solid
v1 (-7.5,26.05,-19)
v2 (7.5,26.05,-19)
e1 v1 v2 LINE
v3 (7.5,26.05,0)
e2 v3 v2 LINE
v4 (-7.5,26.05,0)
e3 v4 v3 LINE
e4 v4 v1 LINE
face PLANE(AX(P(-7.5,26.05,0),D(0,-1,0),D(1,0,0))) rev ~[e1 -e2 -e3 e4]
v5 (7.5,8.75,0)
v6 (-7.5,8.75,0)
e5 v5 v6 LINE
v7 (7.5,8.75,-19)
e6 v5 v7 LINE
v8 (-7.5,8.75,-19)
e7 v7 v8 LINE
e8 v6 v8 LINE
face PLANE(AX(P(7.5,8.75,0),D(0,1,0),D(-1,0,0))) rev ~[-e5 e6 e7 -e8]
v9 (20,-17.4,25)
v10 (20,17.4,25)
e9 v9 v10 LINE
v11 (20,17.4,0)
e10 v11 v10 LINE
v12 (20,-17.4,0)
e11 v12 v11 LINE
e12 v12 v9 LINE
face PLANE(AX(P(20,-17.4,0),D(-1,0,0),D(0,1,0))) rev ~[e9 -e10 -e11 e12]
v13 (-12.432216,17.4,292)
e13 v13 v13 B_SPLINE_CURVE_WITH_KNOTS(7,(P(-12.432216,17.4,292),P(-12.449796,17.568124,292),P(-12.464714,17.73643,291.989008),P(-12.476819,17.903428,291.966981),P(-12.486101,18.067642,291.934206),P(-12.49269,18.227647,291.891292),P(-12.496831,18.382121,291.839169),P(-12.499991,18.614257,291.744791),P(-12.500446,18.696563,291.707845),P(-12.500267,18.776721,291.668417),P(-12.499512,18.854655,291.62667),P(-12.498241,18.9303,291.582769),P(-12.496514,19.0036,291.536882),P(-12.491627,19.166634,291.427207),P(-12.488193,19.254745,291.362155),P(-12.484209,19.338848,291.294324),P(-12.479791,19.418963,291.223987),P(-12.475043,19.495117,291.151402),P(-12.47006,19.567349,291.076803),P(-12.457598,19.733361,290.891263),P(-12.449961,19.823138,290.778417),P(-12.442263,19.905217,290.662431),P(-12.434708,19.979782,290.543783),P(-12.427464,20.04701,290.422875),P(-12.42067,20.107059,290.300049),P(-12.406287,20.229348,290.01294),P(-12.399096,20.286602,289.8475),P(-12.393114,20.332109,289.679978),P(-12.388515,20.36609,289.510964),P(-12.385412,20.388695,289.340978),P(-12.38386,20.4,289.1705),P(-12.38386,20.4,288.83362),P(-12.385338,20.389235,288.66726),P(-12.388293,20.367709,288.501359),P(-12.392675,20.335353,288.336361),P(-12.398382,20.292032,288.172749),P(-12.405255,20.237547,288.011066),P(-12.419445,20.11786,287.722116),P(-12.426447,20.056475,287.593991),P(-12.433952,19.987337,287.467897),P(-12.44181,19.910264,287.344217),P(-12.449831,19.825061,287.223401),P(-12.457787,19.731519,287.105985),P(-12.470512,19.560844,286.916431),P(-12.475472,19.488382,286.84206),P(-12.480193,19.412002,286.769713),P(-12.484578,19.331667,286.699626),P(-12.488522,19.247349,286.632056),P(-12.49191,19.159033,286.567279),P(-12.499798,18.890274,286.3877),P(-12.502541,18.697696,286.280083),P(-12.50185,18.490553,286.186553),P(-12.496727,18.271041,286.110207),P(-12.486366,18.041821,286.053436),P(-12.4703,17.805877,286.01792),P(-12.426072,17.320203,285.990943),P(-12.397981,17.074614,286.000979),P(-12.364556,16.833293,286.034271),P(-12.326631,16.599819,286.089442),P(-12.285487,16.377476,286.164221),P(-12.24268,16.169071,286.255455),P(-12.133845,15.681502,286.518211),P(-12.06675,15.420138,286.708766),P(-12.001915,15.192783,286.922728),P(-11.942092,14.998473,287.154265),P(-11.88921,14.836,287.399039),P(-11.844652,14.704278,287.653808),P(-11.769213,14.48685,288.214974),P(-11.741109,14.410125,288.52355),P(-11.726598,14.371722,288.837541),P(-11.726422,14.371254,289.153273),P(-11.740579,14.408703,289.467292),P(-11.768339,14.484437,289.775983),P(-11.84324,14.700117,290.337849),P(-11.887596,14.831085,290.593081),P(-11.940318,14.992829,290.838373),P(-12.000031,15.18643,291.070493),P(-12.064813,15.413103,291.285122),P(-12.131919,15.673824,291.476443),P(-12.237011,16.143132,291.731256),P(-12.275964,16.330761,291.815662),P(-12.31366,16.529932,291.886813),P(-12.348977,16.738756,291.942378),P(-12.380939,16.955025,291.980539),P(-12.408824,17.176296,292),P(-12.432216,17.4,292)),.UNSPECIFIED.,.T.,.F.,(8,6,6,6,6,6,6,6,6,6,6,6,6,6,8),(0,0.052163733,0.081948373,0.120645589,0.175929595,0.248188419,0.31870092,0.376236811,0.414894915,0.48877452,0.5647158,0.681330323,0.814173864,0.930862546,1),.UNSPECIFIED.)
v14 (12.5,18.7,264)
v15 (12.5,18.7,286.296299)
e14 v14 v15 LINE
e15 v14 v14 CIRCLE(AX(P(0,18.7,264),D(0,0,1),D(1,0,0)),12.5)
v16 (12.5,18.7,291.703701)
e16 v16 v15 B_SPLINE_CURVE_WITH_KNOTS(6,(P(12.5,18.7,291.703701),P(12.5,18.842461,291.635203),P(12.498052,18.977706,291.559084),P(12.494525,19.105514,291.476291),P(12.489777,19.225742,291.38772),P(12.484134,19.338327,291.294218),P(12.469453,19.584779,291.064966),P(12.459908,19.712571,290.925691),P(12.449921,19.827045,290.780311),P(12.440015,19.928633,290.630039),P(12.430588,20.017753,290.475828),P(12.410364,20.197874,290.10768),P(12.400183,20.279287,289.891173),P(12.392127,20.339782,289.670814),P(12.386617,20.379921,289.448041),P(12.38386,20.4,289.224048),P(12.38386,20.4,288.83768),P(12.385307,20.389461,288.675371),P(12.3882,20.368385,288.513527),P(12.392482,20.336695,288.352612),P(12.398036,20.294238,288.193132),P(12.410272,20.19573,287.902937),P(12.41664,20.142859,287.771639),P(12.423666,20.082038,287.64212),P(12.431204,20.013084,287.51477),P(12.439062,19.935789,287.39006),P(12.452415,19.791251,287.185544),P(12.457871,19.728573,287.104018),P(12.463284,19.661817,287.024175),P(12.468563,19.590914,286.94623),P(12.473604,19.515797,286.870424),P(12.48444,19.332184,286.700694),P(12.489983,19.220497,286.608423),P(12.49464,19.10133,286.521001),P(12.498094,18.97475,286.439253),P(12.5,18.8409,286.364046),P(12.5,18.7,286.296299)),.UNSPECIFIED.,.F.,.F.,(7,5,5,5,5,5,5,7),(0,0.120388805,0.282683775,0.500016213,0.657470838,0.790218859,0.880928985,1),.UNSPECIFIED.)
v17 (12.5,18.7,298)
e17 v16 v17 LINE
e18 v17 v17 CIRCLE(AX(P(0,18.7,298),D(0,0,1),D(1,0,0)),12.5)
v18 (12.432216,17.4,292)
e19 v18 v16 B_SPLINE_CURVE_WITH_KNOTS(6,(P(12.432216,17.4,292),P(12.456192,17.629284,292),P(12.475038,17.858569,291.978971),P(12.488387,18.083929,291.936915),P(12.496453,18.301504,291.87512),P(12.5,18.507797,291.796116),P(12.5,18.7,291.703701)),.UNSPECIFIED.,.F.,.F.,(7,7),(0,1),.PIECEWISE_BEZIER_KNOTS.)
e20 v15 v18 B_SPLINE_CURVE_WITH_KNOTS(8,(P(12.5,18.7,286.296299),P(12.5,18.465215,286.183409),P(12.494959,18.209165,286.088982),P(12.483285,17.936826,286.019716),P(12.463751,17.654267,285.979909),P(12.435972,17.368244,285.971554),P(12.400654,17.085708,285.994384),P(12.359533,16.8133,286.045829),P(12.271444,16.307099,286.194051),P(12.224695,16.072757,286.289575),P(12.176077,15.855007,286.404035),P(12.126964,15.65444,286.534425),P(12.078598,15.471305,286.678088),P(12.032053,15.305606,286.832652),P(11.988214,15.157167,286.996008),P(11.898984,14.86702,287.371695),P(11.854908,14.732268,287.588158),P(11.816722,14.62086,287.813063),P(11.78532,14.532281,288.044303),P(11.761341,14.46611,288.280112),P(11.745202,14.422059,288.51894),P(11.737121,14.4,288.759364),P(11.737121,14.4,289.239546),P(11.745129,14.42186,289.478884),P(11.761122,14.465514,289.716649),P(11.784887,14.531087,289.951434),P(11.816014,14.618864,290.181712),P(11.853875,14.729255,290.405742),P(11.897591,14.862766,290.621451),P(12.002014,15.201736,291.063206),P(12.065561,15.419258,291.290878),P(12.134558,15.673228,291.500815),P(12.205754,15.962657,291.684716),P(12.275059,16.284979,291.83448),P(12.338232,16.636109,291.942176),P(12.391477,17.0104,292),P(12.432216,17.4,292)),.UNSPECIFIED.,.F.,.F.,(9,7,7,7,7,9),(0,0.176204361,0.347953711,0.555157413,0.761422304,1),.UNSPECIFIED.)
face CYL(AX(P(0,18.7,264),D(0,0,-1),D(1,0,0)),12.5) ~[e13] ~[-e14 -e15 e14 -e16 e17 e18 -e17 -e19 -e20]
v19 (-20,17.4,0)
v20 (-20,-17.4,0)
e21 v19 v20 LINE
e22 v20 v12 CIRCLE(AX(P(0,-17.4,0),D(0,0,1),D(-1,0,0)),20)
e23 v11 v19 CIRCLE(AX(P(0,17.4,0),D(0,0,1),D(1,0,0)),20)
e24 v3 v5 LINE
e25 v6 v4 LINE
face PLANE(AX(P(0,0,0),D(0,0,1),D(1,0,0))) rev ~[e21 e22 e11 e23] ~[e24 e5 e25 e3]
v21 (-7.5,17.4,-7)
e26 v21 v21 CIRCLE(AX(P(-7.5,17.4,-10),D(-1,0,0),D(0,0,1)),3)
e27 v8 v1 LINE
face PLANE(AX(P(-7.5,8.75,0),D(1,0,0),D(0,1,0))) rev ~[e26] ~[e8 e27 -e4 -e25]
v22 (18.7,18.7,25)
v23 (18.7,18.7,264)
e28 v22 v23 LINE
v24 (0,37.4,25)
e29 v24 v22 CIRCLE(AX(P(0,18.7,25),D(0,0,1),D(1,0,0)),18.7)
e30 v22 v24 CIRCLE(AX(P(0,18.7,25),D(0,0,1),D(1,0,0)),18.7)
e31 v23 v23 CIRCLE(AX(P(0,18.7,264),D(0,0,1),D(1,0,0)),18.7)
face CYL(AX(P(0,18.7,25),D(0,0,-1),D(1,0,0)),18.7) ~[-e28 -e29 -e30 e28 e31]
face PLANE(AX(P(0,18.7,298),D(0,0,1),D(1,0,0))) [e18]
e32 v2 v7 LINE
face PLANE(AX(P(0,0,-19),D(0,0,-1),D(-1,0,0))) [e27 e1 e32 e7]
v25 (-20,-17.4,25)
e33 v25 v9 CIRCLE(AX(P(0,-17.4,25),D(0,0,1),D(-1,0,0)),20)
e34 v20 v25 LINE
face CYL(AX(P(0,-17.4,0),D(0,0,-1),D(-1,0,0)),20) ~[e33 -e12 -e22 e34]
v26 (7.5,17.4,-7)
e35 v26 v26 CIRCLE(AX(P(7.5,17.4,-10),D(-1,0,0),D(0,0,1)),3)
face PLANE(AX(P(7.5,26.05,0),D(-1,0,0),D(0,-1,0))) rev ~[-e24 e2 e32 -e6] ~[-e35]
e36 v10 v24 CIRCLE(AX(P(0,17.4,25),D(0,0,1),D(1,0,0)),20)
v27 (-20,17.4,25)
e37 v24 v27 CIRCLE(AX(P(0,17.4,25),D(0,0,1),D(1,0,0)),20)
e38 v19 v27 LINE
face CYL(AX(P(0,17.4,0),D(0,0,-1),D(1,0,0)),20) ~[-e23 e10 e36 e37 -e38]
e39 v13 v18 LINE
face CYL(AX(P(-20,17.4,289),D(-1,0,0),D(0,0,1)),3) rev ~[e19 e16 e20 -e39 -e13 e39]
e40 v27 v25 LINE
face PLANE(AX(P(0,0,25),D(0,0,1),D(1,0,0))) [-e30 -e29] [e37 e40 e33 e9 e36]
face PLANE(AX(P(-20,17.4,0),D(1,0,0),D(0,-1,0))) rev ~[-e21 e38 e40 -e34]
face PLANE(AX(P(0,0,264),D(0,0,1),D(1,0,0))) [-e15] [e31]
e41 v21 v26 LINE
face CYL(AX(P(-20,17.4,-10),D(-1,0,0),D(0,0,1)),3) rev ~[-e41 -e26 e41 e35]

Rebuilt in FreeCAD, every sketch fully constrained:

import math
import FreeCAD as App
import Part
import Sketcher


def add_polygon(sketch, points):
    """Adds a closed chain of lines whose ends are joined by coincident constraints."""
    first, n = sketch.GeometryCount, len(points)
    for a, b in zip(points, points[1:] + points[:1]):
        sketch.addGeometry(Part.LineSegment(App.Vector(*a, 0), App.Vector(*b, 0)), False)
    for i in range(n):
        sketch.addConstraint(Sketcher.Constraint("Coincident", first + i, 2, first + (i + 1) % n, 1))

doc = App.newDocument("Part")
params = doc.addObject("Spreadsheet::Sheet", "Params")
for row, (alias, value) in enumerate([
    ("sketch1_radius", "20 mm"),
    ("sketch1_height", "34.8 mm"),
    ("pad1_length", "25 mm"),
    ("sketch2_diameter", "37.4 mm"),
    ("pad2_length", "239 mm"),
    ("sketch3_diameter", "25 mm"),
    ("pad3_length", "34 mm"),
    ("sketch4_width", "15 mm"),
    ("sketch4_height", "17.3 mm"),
    ("pad4_length", "19 mm"),
    ("sketch5_diameter", "6 mm"),
], start=1):
    params.set(f"A{row}", alias)
    params.set(f"B{row}", "=" + value)
    params.setAlias(f"B{row}", alias)

body = doc.addObject("PartDesign::Body", "Body")

sketch1 = doc.addObject("Sketcher::SketchObject", "Sketch")
body.addObject(sketch1)
sketch1.AttachmentSupport = (doc.XY_Plane, [""])
sketch1.MapMode = "FlatFace"
sketch1.addGeometry([
    Part.ArcOfCircle(Part.Circle(App.Vector(0, 17, 0), App.Vector(0, 0, 1), 20), math.radians(0), math.radians(180)),
    Part.LineSegment(App.Vector(-20, 17, 0), App.Vector(-20, -17, 0)),
    Part.ArcOfCircle(Part.Circle(App.Vector(0, -17, 0), App.Vector(0, 0, 1), 20), math.radians(180), math.radians(360)),
    Part.LineSegment(App.Vector(20, -17, 0), App.Vector(20, 17, 0)),
], False)
sketch1.addConstraint([
    Sketcher.Constraint("Tangent", 0, 2, 1, 1),
    Sketcher.Constraint("Tangent", 1, 2, 2, 1),
    Sketcher.Constraint("Tangent", 2, 2, 3, 1),
    Sketcher.Constraint("Tangent", 3, 2, 0, 1),
    Sketcher.Constraint("Vertical", 1),
    Sketcher.Constraint("Vertical", 3),
    Sketcher.Constraint("Symmetric", 0, 3, 2, 3, -1, 1),
    Sketcher.Constraint("Radius", 0, 20.0),
    Sketcher.Constraint("DistanceY", 1, 2, 1, 1, 34.8),
])
sketch1.setExpression("Constraints[7]", "Params.sketch1_radius")
sketch1.setExpression("Constraints[8]", "Params.sketch1_height")
pad1 = doc.addObject("PartDesign::Pad", "Pad")
body.addObject(pad1)
pad1.Profile = sketch1
pad1.setExpression("Length", "Params.pad1_length")

sketch2 = doc.addObject("Sketcher::SketchObject", "Sketch001")
body.addObject(sketch2)
sketch2.AttachmentSupport = (doc.XY_Plane, [""])
sketch2.MapMode = "FlatFace"
sketch2.AttachmentOffset = App.Placement(App.Vector(0, 0, 25), App.Rotation())
sketch2.addGeometry(Part.Circle(App.Vector(0, 19, 0), App.Vector(0, 0, 1), 19), False)
sketch2.addConstraint([
    Sketcher.Constraint("PointOnObject", 0, 3, -2),
    Sketcher.Constraint("Diameter", 0, 37.4),
    Sketcher.Constraint("DistanceY", -1, 1, 0, 3, 18.7),
])
sketch2.setExpression("Constraints[1]", "Params.sketch2_diameter")
pad2 = doc.addObject("PartDesign::Pad", "Pad001")
body.addObject(pad2)
pad2.Profile = sketch2
pad2.setExpression("Length", "Params.pad2_length")

sketch3 = doc.addObject("Sketcher::SketchObject", "Sketch002")
body.addObject(sketch3)
sketch3.AttachmentSupport = (doc.XY_Plane, [""])
sketch3.MapMode = "FlatFace"
sketch3.AttachmentOffset = App.Placement(App.Vector(0, 0, 264), App.Rotation())
sketch3.addGeometry(Part.Circle(App.Vector(0, 19, 0), App.Vector(0, 0, 1), 12), False)
sketch3.addConstraint([
    Sketcher.Constraint("PointOnObject", 0, 3, -2),
    Sketcher.Constraint("Diameter", 0, 25.0),
    Sketcher.Constraint("DistanceY", -1, 1, 0, 3, 18.7),
])
sketch3.setExpression("Constraints[1]", "Params.sketch3_diameter")
pad3 = doc.addObject("PartDesign::Pad", "Pad002")
body.addObject(pad3)
pad3.Profile = sketch3
pad3.setExpression("Length", "Params.pad3_length")

sketch4 = doc.addObject("Sketcher::SketchObject", "Sketch003")
body.addObject(sketch4)
sketch4.AttachmentSupport = (doc.XY_Plane, [""])
sketch4.MapMode = "FlatFace"
add_polygon(sketch4, [(8, 26), (8, 9), (-8, 9), (-8, 26)])
sketch4.addConstraint([
    Sketcher.Constraint("Vertical", 0),
    Sketcher.Constraint("Horizontal", 1),
    Sketcher.Constraint("Vertical", 2),
    Sketcher.Constraint("Horizontal", 3),
    Sketcher.Constraint("DistanceX", 1, 2, 1, 1, 15.0),
    Sketcher.Constraint("DistanceY", 0, 2, 0, 1, 17.3),
    Sketcher.Constraint("DistanceX", -1, 1, 0, 2, 7.5),
    Sketcher.Constraint("DistanceY", -1, 1, 0, 2, 8.75),
])
sketch4.setExpression("Constraints[8]", "Params.sketch4_width")
sketch4.setExpression("Constraints[9]", "Params.sketch4_height")
pad4 = doc.addObject("PartDesign::Pad", "Pad003")
body.addObject(pad4)
pad4.Profile = sketch4
pad4.setExpression("Length", "Params.pad4_length")
pad4.Reversed = True

sketch5 = doc.addObject("Sketcher::SketchObject", "Sketch004")
body.addObject(sketch5)
sketch5.AttachmentSupport = (doc.YZ_Plane, [""])
sketch5.MapMode = "FlatFace"
sketch5.AttachmentOffset = App.Placement(App.Vector(0, 0, -20), App.Rotation())
sketch5.addGeometry([
    Part.Circle(App.Vector(17.4, -10, 0), App.Vector(0, 0, 1), 3),
    Part.Circle(App.Vector(17.4, 289, 0), App.Vector(0, 0, 1), 3),
], False)
sketch5.addConstraint([
    Sketcher.Constraint("Equal", 0, 1),
    Sketcher.Constraint("Vertical", 0, 3, 1, 3),
    Sketcher.Constraint("Diameter", 0, 6.0),
    Sketcher.Constraint("DistanceY", 0, 3, 1, 3, 299.0),
    Sketcher.Constraint("DistanceY", 0, 3, -1, 1, 10.0),
    Sketcher.Constraint("DistanceX", -1, 1, 0, 3, 17.4),
])
sketch5.setExpression("Constraints[2]", "Params.sketch5_diameter")
pocket1 = doc.addObject("PartDesign::Pocket", "Pocket")
body.addObject(pocket1)
pocket1.Profile = sketch5
pocket1.Type = "ThroughAll"
pocket1.Reversed = True

doc.recompute()
